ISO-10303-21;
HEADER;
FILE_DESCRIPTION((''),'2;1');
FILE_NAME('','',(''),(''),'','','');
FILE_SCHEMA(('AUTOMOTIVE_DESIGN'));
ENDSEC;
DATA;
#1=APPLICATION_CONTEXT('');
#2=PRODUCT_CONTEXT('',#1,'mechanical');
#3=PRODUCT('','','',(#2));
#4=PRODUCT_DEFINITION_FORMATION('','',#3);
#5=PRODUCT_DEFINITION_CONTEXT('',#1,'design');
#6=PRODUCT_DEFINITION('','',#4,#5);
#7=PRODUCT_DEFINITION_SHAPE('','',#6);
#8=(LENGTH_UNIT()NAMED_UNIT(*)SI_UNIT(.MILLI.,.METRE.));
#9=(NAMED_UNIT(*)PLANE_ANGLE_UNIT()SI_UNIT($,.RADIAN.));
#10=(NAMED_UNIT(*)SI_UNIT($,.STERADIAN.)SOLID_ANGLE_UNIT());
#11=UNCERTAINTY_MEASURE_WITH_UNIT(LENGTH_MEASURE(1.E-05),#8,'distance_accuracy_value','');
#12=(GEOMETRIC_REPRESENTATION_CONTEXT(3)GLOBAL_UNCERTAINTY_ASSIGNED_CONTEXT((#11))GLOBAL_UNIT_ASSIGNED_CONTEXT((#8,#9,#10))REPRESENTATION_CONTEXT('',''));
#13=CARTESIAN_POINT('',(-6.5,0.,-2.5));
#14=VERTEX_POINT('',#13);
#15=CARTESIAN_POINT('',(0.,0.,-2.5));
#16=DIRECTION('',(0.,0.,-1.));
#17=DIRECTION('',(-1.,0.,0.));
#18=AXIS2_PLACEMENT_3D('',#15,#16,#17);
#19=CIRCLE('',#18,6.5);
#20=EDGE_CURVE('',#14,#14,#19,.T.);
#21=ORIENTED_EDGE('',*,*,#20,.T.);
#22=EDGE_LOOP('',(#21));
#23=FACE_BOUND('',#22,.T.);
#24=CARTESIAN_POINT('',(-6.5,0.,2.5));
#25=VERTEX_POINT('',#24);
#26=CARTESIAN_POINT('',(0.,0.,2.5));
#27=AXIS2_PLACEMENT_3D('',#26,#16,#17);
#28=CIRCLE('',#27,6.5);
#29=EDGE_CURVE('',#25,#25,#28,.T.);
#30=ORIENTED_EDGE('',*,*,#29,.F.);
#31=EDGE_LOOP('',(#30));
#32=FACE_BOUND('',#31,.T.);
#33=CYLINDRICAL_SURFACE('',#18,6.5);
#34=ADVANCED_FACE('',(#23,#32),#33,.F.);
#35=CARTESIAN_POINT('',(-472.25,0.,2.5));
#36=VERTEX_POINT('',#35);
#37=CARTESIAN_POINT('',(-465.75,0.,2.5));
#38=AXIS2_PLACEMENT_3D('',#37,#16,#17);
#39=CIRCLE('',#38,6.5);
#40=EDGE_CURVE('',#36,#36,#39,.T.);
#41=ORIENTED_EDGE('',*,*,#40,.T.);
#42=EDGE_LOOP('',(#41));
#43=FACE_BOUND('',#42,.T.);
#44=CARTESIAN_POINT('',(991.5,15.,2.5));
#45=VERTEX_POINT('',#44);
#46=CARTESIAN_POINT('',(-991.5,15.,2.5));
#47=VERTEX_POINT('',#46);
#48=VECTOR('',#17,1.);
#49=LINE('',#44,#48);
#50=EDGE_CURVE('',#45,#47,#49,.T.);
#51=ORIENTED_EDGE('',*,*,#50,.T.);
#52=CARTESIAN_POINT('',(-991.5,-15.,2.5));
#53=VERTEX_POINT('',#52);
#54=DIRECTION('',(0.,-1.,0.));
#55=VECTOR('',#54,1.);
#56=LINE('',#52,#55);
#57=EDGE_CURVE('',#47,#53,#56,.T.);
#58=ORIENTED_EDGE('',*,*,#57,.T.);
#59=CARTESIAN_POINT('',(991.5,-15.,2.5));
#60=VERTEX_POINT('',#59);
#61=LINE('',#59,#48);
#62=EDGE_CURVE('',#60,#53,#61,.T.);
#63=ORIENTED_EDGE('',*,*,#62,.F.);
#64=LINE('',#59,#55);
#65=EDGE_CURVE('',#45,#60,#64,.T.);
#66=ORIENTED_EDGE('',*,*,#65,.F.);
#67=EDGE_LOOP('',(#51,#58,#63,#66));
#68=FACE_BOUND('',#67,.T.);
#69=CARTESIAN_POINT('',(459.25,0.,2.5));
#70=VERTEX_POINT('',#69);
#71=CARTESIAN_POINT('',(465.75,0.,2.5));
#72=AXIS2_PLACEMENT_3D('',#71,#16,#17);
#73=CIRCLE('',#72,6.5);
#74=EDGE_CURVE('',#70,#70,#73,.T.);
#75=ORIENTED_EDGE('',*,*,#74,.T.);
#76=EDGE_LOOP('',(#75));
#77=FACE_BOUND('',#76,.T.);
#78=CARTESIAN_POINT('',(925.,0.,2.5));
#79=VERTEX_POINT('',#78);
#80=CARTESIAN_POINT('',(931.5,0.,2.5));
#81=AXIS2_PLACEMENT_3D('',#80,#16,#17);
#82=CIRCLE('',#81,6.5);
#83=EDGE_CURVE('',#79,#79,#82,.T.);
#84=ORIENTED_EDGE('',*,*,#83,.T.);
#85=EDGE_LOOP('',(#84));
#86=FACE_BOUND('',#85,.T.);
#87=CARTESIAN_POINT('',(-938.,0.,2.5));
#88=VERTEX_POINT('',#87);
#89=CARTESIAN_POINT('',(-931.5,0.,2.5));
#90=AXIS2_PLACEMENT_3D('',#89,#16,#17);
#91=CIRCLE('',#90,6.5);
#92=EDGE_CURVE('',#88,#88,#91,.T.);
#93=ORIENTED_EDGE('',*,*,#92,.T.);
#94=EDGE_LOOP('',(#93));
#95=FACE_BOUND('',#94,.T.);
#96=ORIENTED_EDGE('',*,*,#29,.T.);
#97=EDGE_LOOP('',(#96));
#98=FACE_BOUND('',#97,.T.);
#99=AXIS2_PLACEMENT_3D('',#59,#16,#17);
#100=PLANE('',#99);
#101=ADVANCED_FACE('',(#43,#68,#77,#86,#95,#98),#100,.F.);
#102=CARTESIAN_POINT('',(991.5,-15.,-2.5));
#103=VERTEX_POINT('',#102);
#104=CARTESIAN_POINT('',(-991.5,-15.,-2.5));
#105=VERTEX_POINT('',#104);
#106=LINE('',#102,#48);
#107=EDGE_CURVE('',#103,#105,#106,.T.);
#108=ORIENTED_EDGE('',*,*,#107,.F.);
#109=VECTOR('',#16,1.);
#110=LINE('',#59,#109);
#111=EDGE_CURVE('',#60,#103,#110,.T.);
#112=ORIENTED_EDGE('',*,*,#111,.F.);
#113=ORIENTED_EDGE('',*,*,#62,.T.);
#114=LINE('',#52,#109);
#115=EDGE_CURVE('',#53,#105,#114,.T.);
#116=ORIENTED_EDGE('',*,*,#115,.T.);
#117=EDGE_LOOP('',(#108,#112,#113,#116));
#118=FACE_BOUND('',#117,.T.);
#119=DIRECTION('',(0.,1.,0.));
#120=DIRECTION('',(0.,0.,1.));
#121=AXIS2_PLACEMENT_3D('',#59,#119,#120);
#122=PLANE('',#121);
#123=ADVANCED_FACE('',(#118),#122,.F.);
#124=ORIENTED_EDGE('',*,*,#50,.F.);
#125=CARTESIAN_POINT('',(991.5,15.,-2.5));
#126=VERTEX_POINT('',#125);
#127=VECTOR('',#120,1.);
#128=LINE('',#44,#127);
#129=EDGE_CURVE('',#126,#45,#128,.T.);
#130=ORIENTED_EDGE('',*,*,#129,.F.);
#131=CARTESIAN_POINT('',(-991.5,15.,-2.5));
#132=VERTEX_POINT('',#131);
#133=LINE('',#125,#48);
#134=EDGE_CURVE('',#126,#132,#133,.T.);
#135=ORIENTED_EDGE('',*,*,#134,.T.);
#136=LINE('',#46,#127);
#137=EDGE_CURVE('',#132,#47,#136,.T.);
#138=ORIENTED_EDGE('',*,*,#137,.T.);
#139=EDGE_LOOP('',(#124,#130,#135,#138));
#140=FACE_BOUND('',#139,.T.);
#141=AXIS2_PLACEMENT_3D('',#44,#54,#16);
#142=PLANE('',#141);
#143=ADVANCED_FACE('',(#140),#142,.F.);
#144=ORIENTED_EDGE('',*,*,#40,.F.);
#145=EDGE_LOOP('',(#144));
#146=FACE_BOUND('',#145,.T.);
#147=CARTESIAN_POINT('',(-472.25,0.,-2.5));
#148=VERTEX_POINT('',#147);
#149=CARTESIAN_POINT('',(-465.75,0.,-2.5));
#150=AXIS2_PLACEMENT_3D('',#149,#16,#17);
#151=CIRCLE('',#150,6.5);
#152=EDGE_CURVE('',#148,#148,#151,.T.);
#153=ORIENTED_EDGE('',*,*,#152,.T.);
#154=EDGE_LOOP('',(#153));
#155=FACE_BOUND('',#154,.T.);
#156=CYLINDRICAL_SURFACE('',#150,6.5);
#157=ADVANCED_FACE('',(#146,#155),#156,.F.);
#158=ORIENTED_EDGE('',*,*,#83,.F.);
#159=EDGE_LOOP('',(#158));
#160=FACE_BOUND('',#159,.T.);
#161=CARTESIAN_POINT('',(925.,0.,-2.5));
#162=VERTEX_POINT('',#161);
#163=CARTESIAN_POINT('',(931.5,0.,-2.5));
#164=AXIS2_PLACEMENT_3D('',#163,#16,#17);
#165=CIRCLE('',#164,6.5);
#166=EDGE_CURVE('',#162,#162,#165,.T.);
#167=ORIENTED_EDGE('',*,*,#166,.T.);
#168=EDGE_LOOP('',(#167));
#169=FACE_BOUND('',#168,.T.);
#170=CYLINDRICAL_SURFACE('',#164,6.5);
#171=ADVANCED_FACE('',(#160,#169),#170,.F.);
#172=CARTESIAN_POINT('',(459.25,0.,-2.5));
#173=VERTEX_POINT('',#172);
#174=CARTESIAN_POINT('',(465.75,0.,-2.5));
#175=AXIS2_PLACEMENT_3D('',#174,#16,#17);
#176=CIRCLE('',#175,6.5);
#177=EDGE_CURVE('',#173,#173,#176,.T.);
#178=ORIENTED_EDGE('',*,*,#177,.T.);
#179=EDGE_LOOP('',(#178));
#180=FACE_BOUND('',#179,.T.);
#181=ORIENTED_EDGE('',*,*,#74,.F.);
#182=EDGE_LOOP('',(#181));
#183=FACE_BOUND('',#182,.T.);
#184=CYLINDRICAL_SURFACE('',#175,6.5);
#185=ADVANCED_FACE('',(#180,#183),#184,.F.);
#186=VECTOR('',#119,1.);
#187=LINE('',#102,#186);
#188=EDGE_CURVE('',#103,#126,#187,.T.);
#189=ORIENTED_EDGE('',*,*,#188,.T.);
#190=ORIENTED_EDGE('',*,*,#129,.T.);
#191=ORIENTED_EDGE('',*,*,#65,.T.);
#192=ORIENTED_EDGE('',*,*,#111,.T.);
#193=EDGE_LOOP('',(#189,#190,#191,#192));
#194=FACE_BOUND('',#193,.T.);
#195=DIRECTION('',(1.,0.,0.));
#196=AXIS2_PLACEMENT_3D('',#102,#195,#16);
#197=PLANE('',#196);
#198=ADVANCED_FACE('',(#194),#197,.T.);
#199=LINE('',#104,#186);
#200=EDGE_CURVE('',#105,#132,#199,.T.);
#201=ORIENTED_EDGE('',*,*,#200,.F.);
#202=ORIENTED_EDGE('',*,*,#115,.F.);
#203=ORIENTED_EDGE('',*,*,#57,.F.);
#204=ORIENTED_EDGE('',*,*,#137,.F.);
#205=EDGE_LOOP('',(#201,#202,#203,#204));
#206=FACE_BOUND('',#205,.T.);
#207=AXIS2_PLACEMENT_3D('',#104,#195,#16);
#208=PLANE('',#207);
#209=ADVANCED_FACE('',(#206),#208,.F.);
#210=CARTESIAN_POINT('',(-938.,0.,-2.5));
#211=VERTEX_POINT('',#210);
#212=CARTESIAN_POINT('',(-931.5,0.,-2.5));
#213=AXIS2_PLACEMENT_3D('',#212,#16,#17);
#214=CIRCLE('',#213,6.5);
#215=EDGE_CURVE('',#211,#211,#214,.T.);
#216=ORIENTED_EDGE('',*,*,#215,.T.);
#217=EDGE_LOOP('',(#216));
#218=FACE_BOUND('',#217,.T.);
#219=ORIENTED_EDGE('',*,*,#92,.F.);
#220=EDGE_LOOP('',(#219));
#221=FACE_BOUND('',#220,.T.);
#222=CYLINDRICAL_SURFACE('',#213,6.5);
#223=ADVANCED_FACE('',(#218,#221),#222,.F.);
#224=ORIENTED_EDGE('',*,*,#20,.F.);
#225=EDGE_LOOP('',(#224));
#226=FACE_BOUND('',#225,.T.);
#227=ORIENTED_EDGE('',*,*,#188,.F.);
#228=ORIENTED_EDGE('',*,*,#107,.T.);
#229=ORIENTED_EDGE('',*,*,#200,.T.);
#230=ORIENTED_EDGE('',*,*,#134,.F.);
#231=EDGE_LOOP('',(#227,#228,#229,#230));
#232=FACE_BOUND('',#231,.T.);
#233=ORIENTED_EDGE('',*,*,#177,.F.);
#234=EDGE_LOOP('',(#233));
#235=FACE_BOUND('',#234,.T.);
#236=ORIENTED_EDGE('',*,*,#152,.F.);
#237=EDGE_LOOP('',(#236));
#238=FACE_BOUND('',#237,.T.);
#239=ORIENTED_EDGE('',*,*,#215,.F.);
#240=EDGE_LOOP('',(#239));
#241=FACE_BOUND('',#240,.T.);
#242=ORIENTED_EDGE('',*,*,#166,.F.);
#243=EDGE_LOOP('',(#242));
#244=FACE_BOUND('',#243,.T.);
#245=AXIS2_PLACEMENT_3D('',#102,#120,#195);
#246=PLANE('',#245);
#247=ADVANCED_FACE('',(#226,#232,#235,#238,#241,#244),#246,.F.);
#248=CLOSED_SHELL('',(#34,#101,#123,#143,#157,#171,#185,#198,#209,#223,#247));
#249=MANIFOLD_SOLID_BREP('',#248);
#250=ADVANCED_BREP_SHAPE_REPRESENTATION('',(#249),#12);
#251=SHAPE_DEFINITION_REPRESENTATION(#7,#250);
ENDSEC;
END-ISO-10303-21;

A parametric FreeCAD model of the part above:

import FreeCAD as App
import Part
import Sketcher
from FreeCAD import Vector
Q = App.Units.Quantity

doc = App.newDocument("Part")
body = doc.addObject("PartDesign::Body", "Body")

# Sketch on YZ plane
sketch1 = body.newObject("Sketcher::SketchObject", "Sketch")
sketch1.AttachmentSupport = (doc.getObject("YZ_Plane"), [""])
sketch1.MapMode = "FlatFace"
sketch1.AttachmentOffset = App.Placement(Vector(0, 0, -991.5), App.Rotation())
sketch1.addGeometry([
    Part.LineSegment(Vector(-15, 2, 0), Vector(-15, -2, 0)),
    Part.LineSegment(Vector(-15, -2, 0), Vector(15, -2, 0)),
    Part.LineSegment(Vector(15, -2, 0), Vector(15, 2, 0)),
    Part.LineSegment(Vector(15, 2, 0), Vector(-15, 2, 0)),
], False)
sketch1.addConstraint([
    Sketcher.Constraint("Coincident", 0, 2, 1, 1),
    Sketcher.Constraint("Coincident", 1, 2, 2, 1),
    Sketcher.Constraint("Coincident", 2, 2, 3, 1),
    Sketcher.Constraint("Coincident", 3, 2, 0, 1),
    Sketcher.Constraint("Vertical", 0),
    Sketcher.Constraint("Horizontal", 1),
    Sketcher.Constraint("Vertical", 2),
    Sketcher.Constraint("Horizontal", 3),
    Sketcher.Constraint("Symmetric", 0, 2, 2, 2, -1, 1),
    Sketcher.Constraint("DistanceX", 1, 1, 1, 2, Q("30 mm")),
    Sketcher.Constraint("DistanceY", 0, 2, 0, 1, Q("5 mm")),
])
pad1 = body.newObject("PartDesign::Pad", "Pad")
pad1.Profile = sketch1
pad1.Length = 1983

# Sketch on XY plane
sketch2 = body.newObject("Sketcher::SketchObject", "Sketch001")
sketch2.AttachmentSupport = (doc.getObject("XY_Plane"), [""])
sketch2.MapMode = "FlatFace"
sketch2.AttachmentOffset = App.Placement(Vector(0, 0, -2.5), App.Rotation())
sketch2.addGeometry(Part.Circle(Vector(-932, 0, 0), Vector(0, 0, 1), 6), False)
sketch2.addConstraint([
    Sketcher.Constraint("PointOnObject", 0, 3, -1),
    Sketcher.Constraint("Diameter", 0, Q("13 mm")),
    Sketcher.Constraint("DistanceX", 0, 3, -1, 1, Q("931.5 mm")),
])
doc.recompute()
hole = body.newObject("PartDesign::Hole", "Hole")
hole.Profile = sketch2
hole.ThreadType = "None"
hole.Diameter = 13
hole.DepthType = "ThroughAll"
hole.Reversed = True
doc.recompute()

linearpattern = body.newObject("PartDesign::LinearPattern", "LinearPattern")
linearpattern.Originals = [hole]
linearpattern.Direction = (doc.getObject("X_Axis"), [""])
linearpattern.Mode = "offset"
linearpattern.Offset = 465.75
linearpattern.Occurrences = 5
body.Tip = linearpattern

doc.recompute()
